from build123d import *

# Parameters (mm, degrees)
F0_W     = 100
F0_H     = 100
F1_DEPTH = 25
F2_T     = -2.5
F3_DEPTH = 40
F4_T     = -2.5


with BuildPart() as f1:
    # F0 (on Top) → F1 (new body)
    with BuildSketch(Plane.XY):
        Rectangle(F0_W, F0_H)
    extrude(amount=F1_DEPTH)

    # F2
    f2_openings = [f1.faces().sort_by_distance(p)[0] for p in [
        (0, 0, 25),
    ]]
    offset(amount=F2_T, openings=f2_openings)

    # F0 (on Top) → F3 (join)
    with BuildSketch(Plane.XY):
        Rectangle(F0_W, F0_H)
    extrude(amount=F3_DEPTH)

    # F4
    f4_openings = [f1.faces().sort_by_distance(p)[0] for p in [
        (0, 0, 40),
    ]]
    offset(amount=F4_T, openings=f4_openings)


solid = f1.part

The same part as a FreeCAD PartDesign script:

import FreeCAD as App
import Part
import Sketcher
from FreeCAD import Vector


def faces_at(feature, points):
    """Names of the faces that lie closest to the given points."""
    faces = feature.Shape.Faces
    near = lambda p: min(range(len(faces)), key=lambda i: faces[i].distToShape(Part.Vertex(*p))[0])
    return sorted({f"Face{near(p) + 1}" for p in points})


def add_polygon(sketch, points):
    """Adds a closed chain of lines whose ends are joined by coincident constraints."""
    first, n = sketch.GeometryCount, len(points)
    for a, b in zip(points, points[1:] + points[:1]):
        sketch.addGeometry(Part.LineSegment(App.Vector(*a, 0), App.Vector(*b, 0)), False)
    for i in range(n):
        sketch.addConstraint(Sketcher.Constraint("Coincident", first + i, 2, first + (i + 1) % n, 1))

doc = App.newDocument("Part")
body = doc.addObject("PartDesign::Body", "Body")

sketch1 = doc.addObject("Sketcher::SketchObject", "Sketch")
body.addObject(sketch1)
sketch1.AttachmentSupport = (doc.XY_Plane, [""])
sketch1.MapMode = "FlatFace"
add_polygon(sketch1, [(-50, 50), (-50, -50), (50, -50), (50, 50)])
sketch1.addConstraint(Sketcher.Constraint("Vertical", 0))
sketch1.addConstraint(Sketcher.Constraint("Horizontal", 1))
sketch1.addConstraint(Sketcher.Constraint("Vertical", 2))
sketch1.addConstraint(Sketcher.Constraint("Horizontal", 3))
sketch1.addConstraint(Sketcher.Constraint("Symmetric", 0, 2, 2, 2, -1, 1))
sketch1.addConstraint(Sketcher.Constraint("Equal", 3, 0))
sketch1.addConstraint(Sketcher.Constraint("DistanceX", 1, 1, 1, 2, 100.0))
pad1 = doc.addObject("PartDesign::Pad", "Pad")
body.addObject(pad1)
pad1.Profile = sketch1
pad1.Length = 25
doc.recompute()

thickness = doc.addObject("PartDesign::Thickness", "Thickness")
body.addObject(thickness)
thickness.Base = (pad1, faces_at(pad1, [(0, 0, 25)]))
thickness.Value = 2.5
thickness.Reversed = True
thickness.Join = "Arc"

sketch2 = doc.addObject("Sketcher::SketchObject", "Sketch001")
body.addObject(sketch2)
sketch2.AttachmentSupport = (doc.XY_Plane, [""])
sketch2.MapMode = "FlatFace"
add_polygon(sketch2, [(-50, 50), (-50, -50), (50, -50), (50, 50)])
sketch2.addConstraint(Sketcher.Constraint("Vertical", 0))
sketch2.addConstraint(Sketcher.Constraint("Horizontal", 1))
sketch2.addConstraint(Sketcher.Constraint("Vertical", 2))
sketch2.addConstraint(Sketcher.Constraint("Horizontal", 3))
sketch2.addConstraint(Sketcher.Constraint("Symmetric", 0, 2, 2, 2, -1, 1))
sketch2.addConstraint(Sketcher.Constraint("Equal", 3, 0))
sketch2.addConstraint(Sketcher.Constraint("DistanceX", 1, 1, 1, 2, 100.0))
pad2 = doc.addObject("PartDesign::Pad", "Pad001")
body.addObject(pad2)
pad2.Profile = sketch2
pad2.Length = 40
doc.recompute()

thickness2 = doc.addObject("PartDesign::Thickness", "Thickness001")
body.addObject(thickness2)
thickness2.Base = (pad2, faces_at(pad2, [(0, 0, 40)]))
thickness2.Value = 2.5
thickness2.Reversed = True
thickness2.Join = "Arc"

doc.recompute()
